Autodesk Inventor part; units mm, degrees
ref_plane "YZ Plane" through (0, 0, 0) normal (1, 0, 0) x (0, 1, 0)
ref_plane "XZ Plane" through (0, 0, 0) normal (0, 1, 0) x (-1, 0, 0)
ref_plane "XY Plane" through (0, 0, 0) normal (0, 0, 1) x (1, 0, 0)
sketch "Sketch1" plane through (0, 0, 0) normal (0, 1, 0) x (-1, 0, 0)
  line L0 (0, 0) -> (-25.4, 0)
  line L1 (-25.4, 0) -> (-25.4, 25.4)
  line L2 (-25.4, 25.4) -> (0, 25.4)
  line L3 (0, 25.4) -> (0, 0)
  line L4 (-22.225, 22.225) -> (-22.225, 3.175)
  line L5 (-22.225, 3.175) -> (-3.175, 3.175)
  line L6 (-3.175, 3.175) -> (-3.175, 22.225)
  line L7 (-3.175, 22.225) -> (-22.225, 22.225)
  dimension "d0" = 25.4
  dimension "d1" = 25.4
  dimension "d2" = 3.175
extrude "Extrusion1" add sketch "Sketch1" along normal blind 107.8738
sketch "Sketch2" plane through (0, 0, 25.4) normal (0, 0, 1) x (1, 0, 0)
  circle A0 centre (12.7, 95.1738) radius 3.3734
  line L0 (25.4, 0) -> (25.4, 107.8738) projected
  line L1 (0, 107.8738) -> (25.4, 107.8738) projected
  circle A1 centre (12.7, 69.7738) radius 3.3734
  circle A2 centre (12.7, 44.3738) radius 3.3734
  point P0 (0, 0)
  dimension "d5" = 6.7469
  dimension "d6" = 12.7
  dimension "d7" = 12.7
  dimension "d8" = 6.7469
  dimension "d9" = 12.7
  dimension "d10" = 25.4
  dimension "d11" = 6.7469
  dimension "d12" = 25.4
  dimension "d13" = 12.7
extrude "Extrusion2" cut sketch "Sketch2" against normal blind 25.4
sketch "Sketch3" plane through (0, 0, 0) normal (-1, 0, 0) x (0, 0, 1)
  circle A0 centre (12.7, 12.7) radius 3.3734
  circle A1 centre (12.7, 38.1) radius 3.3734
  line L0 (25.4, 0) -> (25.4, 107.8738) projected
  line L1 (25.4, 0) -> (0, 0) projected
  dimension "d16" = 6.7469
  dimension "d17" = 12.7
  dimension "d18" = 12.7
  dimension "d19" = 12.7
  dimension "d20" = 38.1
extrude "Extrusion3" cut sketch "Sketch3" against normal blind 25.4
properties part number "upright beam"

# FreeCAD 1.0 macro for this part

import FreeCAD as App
import Part
import Sketcher
Q = App.Units.Quantity


def add_polygon(sketch, points):
    """Adds a closed chain of lines whose ends are joined by coincident constraints."""
    first, n = sketch.GeometryCount, len(points)
    for a, b in zip(points, points[1:] + points[:1]):
        sketch.addGeometry(Part.LineSegment(App.Vector(*a, 0), App.Vector(*b, 0)), False)
    for i in range(n):
        sketch.addConstraint(Sketcher.Constraint("Coincident", first + i, 2, first + (i + 1) % n, 1))

doc = App.newDocument("Part")
body = doc.addObject("PartDesign::Body", "Body")

sketch1 = doc.addObject("Sketcher::SketchObject", "Sketch")
body.addObject(sketch1)
sketch1.AttachmentSupport = (doc.XZ_Plane, [""])
sketch1.MapMode = "FlatFace"
add_polygon(sketch1, [(25.4, 0), (0, 0), (0, 25.4), (25.4, 25.4)])
add_polygon(sketch1, [(22.225, 3.175), (22.225, 22.225), (3.175, 22.225), (3.175, 3.175)])
sketch1.addConstraint(Sketcher.Constraint("Horizontal", 0))
sketch1.addConstraint(Sketcher.Constraint("Vertical", 1))
sketch1.addConstraint(Sketcher.Constraint("Horizontal", 2))
sketch1.addConstraint(Sketcher.Constraint("Vertical", 3))
sketch1.addConstraint(Sketcher.Constraint("Vertical", 4))
sketch1.addConstraint(Sketcher.Constraint("Horizontal", 5))
sketch1.addConstraint(Sketcher.Constraint("Vertical", 6))
sketch1.addConstraint(Sketcher.Constraint("Horizontal", 7))
sketch1.addConstraint(Sketcher.Constraint("Coincident", 0, 2, -1, 1))
sketch1.addConstraint(Sketcher.Constraint("Equal", 2, 1))
sketch1.addConstraint(Sketcher.Constraint("Equal", 7, 4))
sketch1.addConstraint(Sketcher.Constraint("DistanceX", 0, 2, 0, 1, Q("1 in")))
sketch1.addConstraint(Sketcher.Constraint("DistanceX", -1, 1, 5, 2, Q("0.125 in")))
sketch1.addConstraint(Sketcher.Constraint("DistanceY", -1, 1, 6, 2, Q("0.125 in")))
sketch1.addConstraint(Sketcher.Constraint("DistanceX", 4, 2, 2, 2, Q("0.125 in")))
pad1 = doc.addObject("PartDesign::Pad", "Pad")
body.addObject(pad1)
pad1.Profile = sketch1
pad1.Length = Q("4.247 in")
pad1.Reversed = True

sketch2 = doc.addObject("Sketcher::SketchObject", "Sketch001")
body.addObject(sketch2)
sketch2.AttachmentSupport = (doc.XY_Plane, [""])
sketch2.MapMode = "FlatFace"
sketch2.AttachmentOffset = App.Placement(App.Vector(0, 0, 1 * 25.4), App.Rotation())
sketch2.addGeometry(Part.Circle(App.Vector(12.7, 95.1738, 0), App.Vector(0, 0, 1), 3.3734), False)
sketch2.addGeometry(Part.Circle(App.Vector(12.7, 69.7738, 0), App.Vector(0, 0, 1), 3.3734), False)
sketch2.addGeometry(Part.Circle(App.Vector(12.7, 44.3738, 0), App.Vector(0, 0, 1), 3.3734), False)
sketch2.addConstraint(Sketcher.Constraint("Equal", 0, 1))
sketch2.addConstraint(Sketcher.Constraint("Equal", 1, 2))
sketch2.addConstraint(Sketcher.Constraint("Vertical", 0, 3, 1, 3))
sketch2.addConstraint(Sketcher.Constraint("Vertical", 1, 3, 2, 3))
sketch2.addConstraint(Sketcher.Constraint("Diameter", 0, Q("0.265622 in")))
sketch2.addConstraint(Sketcher.Constraint("DistanceY", 1, 3, 0, 3, Q("1 in")))
sketch2.addConstraint(Sketcher.Constraint("DistanceY", 2, 3, 1, 3, Q("1 in")))
sketch2.addConstraint(Sketcher.Constraint("DistanceX", -1, 1, 0, 3, Q("0.5 in")))
sketch2.addConstraint(Sketcher.Constraint("DistanceY", -1, 1, 0, 3, Q("3.747 in")))
pocket1 = doc.addObject("PartDesign::Pocket", "Pocket")
body.addObject(pocket1)
pocket1.Profile = sketch2
pocket1.Length = Q("1 in")

sketch3 = doc.addObject("Sketcher::SketchObject", "Sketch002")
body.addObject(sketch3)
sketch3.AttachmentSupport = (doc.YZ_Plane, [""])
sketch3.MapMode = "FlatFace"
sketch3.addGeometry(Part.Circle(App.Vector(12.7, 12.7, 0), App.Vector(0, 0, 1), 3.3734), False)
sketch3.addGeometry(Part.Circle(App.Vector(38.1, 12.7, 0), App.Vector(0, 0, 1), 3.3734), False)
sketch3.addConstraint(Sketcher.Constraint("Equal", 0, 1))
sketch3.addConstraint(Sketcher.Constraint("Horizontal", 0, 3, 1, 3))
sketch3.addConstraint(Sketcher.Constraint("Diameter", 0, Q("0.265622 in")))
sketch3.addConstraint(Sketcher.Constraint("DistanceX", -1, 1, 0, 3, Q("0.5 in")))
sketch3.addConstraint(Sketcher.Constraint("DistanceY", -1, 1, 0, 3, Q("0.5 in")))
sketch3.addConstraint(Sketcher.Constraint("DistanceX", -1, 1, 1, 3, Q("1.5 in")))
pocket2 = doc.addObject("PartDesign::Pocket", "Pocket001")
body.addObject(pocket2)
pocket2.Profile = sketch3
pocket2.Length = Q("1 in")
pocket2.Reversed = True

doc.recompute()
